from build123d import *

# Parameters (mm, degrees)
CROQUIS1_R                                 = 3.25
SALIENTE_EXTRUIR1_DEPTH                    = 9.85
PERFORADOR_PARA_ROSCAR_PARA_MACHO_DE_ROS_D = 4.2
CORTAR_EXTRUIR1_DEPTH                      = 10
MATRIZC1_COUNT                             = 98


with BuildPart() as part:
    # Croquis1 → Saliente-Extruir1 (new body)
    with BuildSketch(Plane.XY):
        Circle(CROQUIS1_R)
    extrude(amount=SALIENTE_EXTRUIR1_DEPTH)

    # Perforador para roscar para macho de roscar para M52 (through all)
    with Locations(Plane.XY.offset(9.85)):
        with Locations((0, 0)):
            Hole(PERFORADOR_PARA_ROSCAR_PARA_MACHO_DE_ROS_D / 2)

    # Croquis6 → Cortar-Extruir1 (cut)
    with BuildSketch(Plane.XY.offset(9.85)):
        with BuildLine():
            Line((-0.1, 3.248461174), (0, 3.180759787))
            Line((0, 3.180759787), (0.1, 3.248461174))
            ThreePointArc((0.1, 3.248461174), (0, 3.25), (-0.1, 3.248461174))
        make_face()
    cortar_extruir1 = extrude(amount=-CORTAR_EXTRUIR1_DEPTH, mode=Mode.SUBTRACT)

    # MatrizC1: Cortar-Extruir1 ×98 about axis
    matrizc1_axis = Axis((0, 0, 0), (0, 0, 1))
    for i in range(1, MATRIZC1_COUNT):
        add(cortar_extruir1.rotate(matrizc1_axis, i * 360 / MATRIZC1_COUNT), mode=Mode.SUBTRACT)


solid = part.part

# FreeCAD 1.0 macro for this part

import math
import FreeCAD as App
import Part
import Sketcher
from FreeCAD import Vector
Q = App.Units.Quantity

doc = App.newDocument("Part")
params = doc.addObject("Spreadsheet::Sheet", "Params")
for row, (alias, value) in enumerate([
    ("sketch1_diameter", "6.5 mm"),
    ("pad1_length", "9.85 mm"),
    ("sketch2_diameter", "4.2 mm"),
    ("hole_diameter", "4.2 mm"),
    ("sketch3_radius", "3.25 mm"),
    ("pocket1_length", "10 mm"),
], start=1):
    params.set(f"A{row}", alias)
    params.set(f"B{row}", "=" + value)
    params.setAlias(f"B{row}", alias)

body = doc.addObject("PartDesign::Body", "Body")

# Sketch on XY plane
sketch1 = body.newObject("Sketcher::SketchObject", "Sketch")
sketch1.AttachmentSupport = (doc.getObject("XY_Plane"), [""])
sketch1.MapMode = "FlatFace"
sketch1.addGeometry(Part.Circle(Vector(0, 0, 0), Vector(0, 0, 1), 3.2), False)
sketch1.addConstraint([
    Sketcher.Constraint("Coincident", 0, 3, -1, 1),
    Sketcher.Constraint("Diameter", 0, Q("6.5 mm")),
])
sketch1.setExpression("Constraints[1]", "Params.sketch1_diameter")
pad1 = body.newObject("PartDesign::Pad", "Pad")
pad1.Profile = sketch1
pad1.setExpression("Length", "Params.pad1_length")

# Sketch on XY plane
sketch2 = body.newObject("Sketcher::SketchObject", "Sketch001")
sketch2.AttachmentSupport = (doc.getObject("XY_Plane"), [""])
sketch2.MapMode = "FlatFace"
sketch2.AttachmentOffset = App.Placement(Vector(0, 0, 9.85), App.Rotation())
sketch2.addGeometry(Part.Circle(Vector(0, 0, 0), Vector(0, 0, 1), 2.1), False)
sketch2.addConstraint([
    Sketcher.Constraint("Coincident", 0, 3, -1, 1),
    Sketcher.Constraint("Diameter", 0, Q("4.2 mm")),
])
sketch2.setExpression("Constraints[1]", "Params.sketch2_diameter")
doc.recompute()
hole = body.newObject("PartDesign::Hole", "Hole")
hole.Profile = sketch2
hole.ThreadType = "None"
hole.setExpression("Diameter", "Params.hole_diameter")
hole.DepthType = "ThroughAll"

# Sketch on XY plane
sketch3 = body.newObject("Sketcher::SketchObject", "Sketch002")
sketch3.AttachmentSupport = (doc.getObject("XY_Plane"), [""])
sketch3.MapMode = "FlatFace"
sketch3.AttachmentOffset = App.Placement(Vector(0, 0, 9.85), App.Rotation())
sketch3.addGeometry([
    Part.LineSegment(Vector(-0.1, 3.25, 0), Vector(0, 3.18, 0)),
    Part.LineSegment(Vector(0, 3.18, 0), Vector(0.1, 3.25, 0)),
    Part.ArcOfCircle(Part.Circle(Vector(0, 0, 0), Vector(0, 0, 1), 3.25), math.radians(88.24), math.radians(91.76)),
], False)
sketch3.addConstraint([
    Sketcher.Constraint("Coincident", 0, 2, 1, 1),
    Sketcher.Constraint("Coincident", 1, 2, 2, 1),
    Sketcher.Constraint("Coincident", 2, 2, 0, 1),
    Sketcher.Constraint("Coincident", 2, 3, -1, 1),
    Sketcher.Constraint("PointOnObject", 0, 2, -2),
    Sketcher.Constraint("Horizontal", 1, 2, 2, 2),
    Sketcher.Constraint("Radius", 2, Q("3.25 mm")),
    Sketcher.Constraint("DistanceX", -1, 1, 1, 2, Q("0.1 mm")),
    Sketcher.Constraint("DistanceY", 0, 2, 1, 2, Q("0.067701 mm")),
])
sketch3.setExpression("Constraints[6]", "Params.sketch3_radius")
pocket1 = body.newObject("PartDesign::Pocket", "Pocket")
pocket1.Profile = sketch3
pocket1.setExpression("Length", "Params.pocket1_length")
doc.recompute()

polarpattern = body.newObject("PartDesign::PolarPattern", "PolarPattern")
polarpattern.Originals = [pocket1]
polarpattern.Axis = (doc.getObject("Z_Axis"), [""])
polarpattern.Angle = 360
polarpattern.Occurrences = 98
body.Tip = polarpattern

doc.recompute()
